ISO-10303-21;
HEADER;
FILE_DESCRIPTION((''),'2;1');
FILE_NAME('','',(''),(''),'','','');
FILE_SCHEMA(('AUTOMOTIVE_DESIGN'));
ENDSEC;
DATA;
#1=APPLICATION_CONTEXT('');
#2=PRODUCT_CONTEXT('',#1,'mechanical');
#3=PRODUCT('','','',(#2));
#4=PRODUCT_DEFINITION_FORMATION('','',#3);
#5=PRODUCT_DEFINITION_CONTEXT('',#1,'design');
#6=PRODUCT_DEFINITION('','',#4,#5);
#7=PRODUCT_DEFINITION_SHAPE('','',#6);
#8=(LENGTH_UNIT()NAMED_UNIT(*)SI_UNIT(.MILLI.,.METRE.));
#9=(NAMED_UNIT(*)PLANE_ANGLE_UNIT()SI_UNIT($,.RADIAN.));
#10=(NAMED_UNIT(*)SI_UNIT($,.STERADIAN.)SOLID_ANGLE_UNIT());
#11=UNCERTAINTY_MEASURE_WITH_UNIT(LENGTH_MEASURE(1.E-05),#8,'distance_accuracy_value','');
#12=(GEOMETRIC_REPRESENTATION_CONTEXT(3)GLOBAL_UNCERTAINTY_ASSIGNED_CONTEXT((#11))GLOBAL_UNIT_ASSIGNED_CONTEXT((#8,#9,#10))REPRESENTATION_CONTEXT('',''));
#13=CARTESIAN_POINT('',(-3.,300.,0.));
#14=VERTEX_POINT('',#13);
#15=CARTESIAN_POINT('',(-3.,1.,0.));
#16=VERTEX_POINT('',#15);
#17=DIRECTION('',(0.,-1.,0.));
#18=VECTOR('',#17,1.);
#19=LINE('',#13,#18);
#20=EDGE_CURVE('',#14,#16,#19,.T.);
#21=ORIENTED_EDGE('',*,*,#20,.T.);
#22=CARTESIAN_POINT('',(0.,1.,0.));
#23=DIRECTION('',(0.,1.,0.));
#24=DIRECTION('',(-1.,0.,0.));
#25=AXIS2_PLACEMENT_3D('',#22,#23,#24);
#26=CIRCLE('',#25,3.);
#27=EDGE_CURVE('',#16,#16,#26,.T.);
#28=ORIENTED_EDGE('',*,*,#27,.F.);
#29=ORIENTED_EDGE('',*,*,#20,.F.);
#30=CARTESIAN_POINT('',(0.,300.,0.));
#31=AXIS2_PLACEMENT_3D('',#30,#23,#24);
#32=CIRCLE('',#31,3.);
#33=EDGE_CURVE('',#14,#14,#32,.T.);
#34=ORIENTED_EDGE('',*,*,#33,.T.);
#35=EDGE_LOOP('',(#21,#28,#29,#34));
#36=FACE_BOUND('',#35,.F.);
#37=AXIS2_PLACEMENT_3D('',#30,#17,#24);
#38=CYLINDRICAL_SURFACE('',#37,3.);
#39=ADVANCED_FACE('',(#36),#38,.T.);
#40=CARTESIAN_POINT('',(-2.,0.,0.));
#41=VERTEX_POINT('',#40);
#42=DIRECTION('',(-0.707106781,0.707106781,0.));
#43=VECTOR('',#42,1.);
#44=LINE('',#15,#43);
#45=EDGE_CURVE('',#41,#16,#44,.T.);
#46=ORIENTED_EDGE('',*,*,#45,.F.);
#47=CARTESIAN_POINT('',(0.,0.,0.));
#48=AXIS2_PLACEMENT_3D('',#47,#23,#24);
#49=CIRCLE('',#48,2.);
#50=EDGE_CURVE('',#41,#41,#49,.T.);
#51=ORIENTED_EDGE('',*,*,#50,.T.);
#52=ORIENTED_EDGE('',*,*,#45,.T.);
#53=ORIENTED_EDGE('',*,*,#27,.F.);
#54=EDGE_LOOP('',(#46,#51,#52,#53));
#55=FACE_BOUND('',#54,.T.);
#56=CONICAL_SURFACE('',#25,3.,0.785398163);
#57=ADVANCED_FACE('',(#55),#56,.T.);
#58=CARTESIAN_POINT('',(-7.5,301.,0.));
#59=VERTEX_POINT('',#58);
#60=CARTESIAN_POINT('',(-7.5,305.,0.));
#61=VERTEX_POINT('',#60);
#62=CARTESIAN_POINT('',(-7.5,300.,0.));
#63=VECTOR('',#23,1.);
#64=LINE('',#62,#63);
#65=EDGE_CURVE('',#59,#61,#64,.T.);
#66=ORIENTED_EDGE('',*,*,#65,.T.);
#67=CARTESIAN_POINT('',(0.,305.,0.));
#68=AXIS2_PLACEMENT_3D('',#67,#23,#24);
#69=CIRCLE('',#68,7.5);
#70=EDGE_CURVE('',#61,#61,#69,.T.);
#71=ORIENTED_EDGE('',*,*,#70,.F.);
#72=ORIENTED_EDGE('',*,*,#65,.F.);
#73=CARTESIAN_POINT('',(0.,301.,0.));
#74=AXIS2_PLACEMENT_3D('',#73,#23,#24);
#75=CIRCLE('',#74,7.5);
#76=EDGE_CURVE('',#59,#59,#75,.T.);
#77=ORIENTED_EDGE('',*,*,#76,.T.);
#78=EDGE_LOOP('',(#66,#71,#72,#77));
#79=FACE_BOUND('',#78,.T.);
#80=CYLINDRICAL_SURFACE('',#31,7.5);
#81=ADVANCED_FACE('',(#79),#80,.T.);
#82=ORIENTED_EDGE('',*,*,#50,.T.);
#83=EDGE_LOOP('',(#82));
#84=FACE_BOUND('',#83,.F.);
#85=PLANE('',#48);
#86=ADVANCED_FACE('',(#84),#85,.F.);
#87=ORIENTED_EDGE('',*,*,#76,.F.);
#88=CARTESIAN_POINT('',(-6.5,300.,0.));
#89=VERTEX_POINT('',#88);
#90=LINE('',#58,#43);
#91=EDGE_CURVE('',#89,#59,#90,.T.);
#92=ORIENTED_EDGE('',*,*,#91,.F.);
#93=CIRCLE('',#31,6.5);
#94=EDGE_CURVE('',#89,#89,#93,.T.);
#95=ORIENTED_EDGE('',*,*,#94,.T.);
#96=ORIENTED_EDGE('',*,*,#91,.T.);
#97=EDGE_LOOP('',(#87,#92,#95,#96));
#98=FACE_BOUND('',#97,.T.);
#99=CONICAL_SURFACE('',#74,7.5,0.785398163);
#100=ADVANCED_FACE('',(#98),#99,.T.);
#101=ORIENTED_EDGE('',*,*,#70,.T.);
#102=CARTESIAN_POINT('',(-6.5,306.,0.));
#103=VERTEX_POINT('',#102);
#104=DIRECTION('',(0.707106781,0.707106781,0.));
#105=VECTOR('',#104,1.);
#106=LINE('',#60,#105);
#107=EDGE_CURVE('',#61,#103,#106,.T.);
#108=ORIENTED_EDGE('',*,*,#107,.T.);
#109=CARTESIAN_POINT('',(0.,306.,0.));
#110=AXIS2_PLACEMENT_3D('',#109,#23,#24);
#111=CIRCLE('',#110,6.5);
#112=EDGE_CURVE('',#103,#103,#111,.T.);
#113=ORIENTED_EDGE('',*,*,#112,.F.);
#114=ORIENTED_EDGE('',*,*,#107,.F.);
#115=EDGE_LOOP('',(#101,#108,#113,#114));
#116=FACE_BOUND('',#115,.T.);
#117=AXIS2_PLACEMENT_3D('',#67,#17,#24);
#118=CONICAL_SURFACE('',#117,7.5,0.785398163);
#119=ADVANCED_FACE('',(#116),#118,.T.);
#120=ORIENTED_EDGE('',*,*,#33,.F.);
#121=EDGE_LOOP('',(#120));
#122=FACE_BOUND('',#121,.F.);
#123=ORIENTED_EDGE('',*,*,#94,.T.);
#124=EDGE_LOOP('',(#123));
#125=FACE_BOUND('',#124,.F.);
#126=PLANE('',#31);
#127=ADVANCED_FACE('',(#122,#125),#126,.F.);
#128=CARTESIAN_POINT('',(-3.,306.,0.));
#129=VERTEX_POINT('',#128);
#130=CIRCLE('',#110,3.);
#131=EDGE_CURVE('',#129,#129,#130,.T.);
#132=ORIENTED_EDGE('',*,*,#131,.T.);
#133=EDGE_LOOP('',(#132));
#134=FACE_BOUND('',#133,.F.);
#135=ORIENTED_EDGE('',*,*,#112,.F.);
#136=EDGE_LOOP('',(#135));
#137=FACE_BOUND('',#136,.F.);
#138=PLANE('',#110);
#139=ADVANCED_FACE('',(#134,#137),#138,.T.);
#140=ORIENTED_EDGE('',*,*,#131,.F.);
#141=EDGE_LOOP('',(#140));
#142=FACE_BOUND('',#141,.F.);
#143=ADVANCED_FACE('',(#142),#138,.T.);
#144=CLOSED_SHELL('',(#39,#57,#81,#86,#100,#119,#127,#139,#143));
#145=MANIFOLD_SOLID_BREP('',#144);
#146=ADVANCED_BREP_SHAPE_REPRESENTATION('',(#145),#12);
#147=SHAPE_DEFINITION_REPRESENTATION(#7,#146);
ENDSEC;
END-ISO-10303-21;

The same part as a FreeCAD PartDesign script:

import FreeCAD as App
import Part
import Sketcher
from FreeCAD import Vector
Q = App.Units.Quantity


def edges_at(feature, points):
    """Names of the edges that pass closest to the given points."""
    edges = feature.Shape.Edges
    near = lambda p: min(range(len(edges)), key=lambda i: edges[i].distToShape(Part.Vertex(*p))[0])
    return sorted({f"Edge{near(p) + 1}" for p in points})


def add_polygon(sketch, points):
    """Adds a closed chain of lines whose ends are joined by coincident constraints."""
    first, n = sketch.GeometryCount, len(points)
    for a, b in zip(points, points[1:] + points[:1]):
        sketch.addGeometry(Part.LineSegment(App.Vector(*a, 0), App.Vector(*b, 0)), False)
    for i in range(n):
        sketch.addConstraint(Sketcher.Constraint("Coincident", first + i, 2, first + (i + 1) % n, 1))

doc = App.newDocument("Part")
body = doc.addObject("PartDesign::Body", "Body")

# Sketch on XY plane
sketch1 = doc.addObject("Sketcher::SketchObject", "Sketch")
body.addObject(sketch1)
sketch1.AttachmentSupport = (doc.XY_Plane, [""])
sketch1.MapMode = "FlatFace"
add_polygon(sketch1, [(-7.5, 300), (-3, 300), (-3, 0), (0, 0), (0, 306), (-7.5, 306)])  # lines 0-5
sketch1.addConstraint([
    Sketcher.Constraint("Horizontal", 0),
    Sketcher.Constraint("Vertical", 1),
    Sketcher.Constraint("Horizontal", 2),
    Sketcher.Constraint("Vertical", 3),
    Sketcher.Constraint("Horizontal", 4),
    Sketcher.Constraint("Vertical", 5),
    Sketcher.Constraint("Coincident", 2, 2, -1, 1),
    Sketcher.Constraint("DistanceX", 2, 1, 2, 2, Q("3 mm")),
    Sketcher.Constraint("DistanceY", 1, 2, 1, 1, Q("300 mm")),
    Sketcher.Constraint("DistanceY", 5, 2, 5, 1, Q("6 mm")),
    Sketcher.Constraint("DistanceX", 4, 2, 4, 1, Q("7.5 mm")),
])
revolution = doc.addObject("PartDesign::Revolution", "Revolution")
body.addObject(revolution)
revolution.Profile = sketch1
revolution.ReferenceAxis = (sketch1, ["V_Axis"])
revolution.Angle = 360
doc.recompute()

chamfer = doc.addObject("PartDesign::Chamfer", "Chamfer")
body.addObject(chamfer)
chamfer.Base = (revolution, edges_at(revolution, [(3, 0, 0)]))
chamfer.Size = 1
doc.recompute()

chamfer2 = doc.addObject("PartDesign::Chamfer", "Chamfer001")
body.addObject(chamfer2)
chamfer2.Base = (chamfer, edges_at(chamfer, [(7.5, 306, 0), (7.5, 300, 0)]))
chamfer2.Size = 1

doc.recompute()
